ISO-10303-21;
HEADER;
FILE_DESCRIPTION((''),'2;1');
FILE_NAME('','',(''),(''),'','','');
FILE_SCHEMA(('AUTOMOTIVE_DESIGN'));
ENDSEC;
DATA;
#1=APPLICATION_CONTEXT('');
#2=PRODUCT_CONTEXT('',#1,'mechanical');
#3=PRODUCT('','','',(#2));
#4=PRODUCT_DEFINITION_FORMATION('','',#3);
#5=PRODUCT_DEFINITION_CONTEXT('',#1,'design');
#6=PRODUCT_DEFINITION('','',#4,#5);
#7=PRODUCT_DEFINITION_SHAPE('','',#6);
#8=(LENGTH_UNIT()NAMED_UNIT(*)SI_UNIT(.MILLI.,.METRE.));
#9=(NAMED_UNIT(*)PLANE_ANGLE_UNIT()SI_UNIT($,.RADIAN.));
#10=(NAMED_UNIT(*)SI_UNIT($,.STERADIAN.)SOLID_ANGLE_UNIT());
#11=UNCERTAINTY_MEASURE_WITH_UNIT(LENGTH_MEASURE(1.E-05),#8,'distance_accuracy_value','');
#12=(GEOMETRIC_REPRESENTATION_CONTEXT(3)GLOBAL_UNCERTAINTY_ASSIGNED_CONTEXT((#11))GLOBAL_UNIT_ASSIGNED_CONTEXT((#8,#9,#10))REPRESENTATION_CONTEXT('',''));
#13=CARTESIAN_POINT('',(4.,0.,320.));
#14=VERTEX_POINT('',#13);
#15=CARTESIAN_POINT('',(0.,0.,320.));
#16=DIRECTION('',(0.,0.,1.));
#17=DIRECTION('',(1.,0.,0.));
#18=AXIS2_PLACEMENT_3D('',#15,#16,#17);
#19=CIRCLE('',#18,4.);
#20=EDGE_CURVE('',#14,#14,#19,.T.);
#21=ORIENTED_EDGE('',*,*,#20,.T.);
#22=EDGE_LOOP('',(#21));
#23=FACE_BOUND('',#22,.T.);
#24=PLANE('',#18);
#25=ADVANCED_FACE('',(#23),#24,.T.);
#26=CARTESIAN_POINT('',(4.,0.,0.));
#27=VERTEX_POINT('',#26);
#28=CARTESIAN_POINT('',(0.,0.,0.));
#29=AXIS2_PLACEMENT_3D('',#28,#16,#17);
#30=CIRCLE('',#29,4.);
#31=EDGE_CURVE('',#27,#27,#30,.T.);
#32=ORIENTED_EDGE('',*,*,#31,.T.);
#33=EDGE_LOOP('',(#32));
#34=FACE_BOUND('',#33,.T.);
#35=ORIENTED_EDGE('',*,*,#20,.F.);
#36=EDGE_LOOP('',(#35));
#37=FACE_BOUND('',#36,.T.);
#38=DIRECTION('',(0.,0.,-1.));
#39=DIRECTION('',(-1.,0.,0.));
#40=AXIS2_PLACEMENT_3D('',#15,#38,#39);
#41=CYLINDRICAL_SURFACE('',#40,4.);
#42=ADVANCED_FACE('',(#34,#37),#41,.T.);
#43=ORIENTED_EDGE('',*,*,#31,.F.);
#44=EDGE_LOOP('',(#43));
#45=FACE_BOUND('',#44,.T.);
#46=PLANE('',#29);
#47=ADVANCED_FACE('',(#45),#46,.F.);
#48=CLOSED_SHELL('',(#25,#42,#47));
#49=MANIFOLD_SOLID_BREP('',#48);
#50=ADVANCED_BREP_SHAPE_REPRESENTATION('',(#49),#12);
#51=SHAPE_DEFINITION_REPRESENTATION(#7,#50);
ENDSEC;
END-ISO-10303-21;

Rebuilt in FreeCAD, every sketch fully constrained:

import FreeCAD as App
import Part
import Sketcher

V = App.Vector
Q = App.Units.Quantity

doc = App.newDocument("Part")
body = doc.addObject("PartDesign::Body", "Body")

# Sketch on XY plane
sketch1 = body.newObject("Sketcher::SketchObject", "Sketch")
sketch1.AttachmentSupport = (doc.getObject("XY_Plane"), [""])
sketch1.MapMode = "FlatFace"
sketch1.addGeometry(Part.Circle(V(0, 0, 0), V(0, 0, 1), 4), False)
sketch1.addConstraint([
    Sketcher.Constraint("Coincident", 0, 3, -1, 1),
    Sketcher.Constraint("Diameter", 0, Q("8 mm")),
])
pad1 = body.newObject("PartDesign::Pad", "Pad")
pad1.Profile = sketch1
pad1.Length = 320

doc.recompute()
